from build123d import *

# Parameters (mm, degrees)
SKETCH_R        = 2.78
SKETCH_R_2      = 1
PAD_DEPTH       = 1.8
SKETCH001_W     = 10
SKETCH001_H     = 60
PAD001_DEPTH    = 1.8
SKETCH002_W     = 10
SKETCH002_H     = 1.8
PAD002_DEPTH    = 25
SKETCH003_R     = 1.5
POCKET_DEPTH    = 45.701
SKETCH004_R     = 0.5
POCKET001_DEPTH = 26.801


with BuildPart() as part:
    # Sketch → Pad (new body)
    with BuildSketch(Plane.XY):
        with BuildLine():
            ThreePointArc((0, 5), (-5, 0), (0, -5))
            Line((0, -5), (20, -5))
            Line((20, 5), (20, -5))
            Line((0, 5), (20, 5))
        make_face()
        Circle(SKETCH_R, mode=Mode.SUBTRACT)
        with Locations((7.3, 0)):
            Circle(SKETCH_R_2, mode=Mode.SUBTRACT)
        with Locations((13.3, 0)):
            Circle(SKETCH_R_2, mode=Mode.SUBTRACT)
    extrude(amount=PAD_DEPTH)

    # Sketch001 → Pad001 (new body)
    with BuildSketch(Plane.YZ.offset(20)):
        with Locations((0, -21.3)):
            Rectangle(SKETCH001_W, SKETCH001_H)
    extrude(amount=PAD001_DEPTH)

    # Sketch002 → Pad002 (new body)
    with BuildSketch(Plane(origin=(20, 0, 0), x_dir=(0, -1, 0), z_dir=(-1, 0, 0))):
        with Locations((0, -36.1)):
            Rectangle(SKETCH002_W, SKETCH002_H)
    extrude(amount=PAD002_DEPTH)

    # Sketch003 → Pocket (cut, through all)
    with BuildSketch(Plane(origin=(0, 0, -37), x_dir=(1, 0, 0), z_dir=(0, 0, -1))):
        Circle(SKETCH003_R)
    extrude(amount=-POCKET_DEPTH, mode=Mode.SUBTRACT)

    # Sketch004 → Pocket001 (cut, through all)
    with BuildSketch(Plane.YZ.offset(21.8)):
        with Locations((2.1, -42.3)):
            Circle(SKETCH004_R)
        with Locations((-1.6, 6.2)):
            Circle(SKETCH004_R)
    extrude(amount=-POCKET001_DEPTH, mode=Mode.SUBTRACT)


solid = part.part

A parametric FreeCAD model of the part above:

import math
import FreeCAD as App
import Part
import Sketcher

V = App.Vector
Q = App.Units.Quantity


def add_polygon(sketch, points):
    """Adds a closed chain of lines whose ends are joined by coincident constraints."""
    first, n = sketch.GeometryCount, len(points)
    for a, b in zip(points, points[1:] + points[:1]):
        sketch.addGeometry(Part.LineSegment(App.Vector(*a, 0), App.Vector(*b, 0)), False)
    for i in range(n):
        sketch.addConstraint(Sketcher.Constraint("Coincident", first + i, 2, first + (i + 1) % n, 1))

doc = App.newDocument("Part")
body = doc.addObject("PartDesign::Body", "Body")

# Sketch on XY plane
sketch1 = body.newObject("Sketcher::SketchObject", "Sketch")
sketch1.AttachmentSupport = (doc.getObject("XY_Plane"), [""])
sketch1.MapMode = "FlatFace"
sketch1.addGeometry(Part.ArcOfCircle(Part.Circle(V(0, 0, 0), V(0, 0, 1), 5), math.radians(90), math.radians(270)), False)
sketch1.addGeometry(Part.LineSegment(V(0, -5, 0), V(20, -5, 0)), False)
sketch1.addGeometry(Part.LineSegment(V(20, -5, 0), V(20, 5, 0)), False)
sketch1.addGeometry(Part.LineSegment(V(20, 5, 0), V(0, 5, 0)), False)
sketch1.addGeometry(Part.Circle(V(0, 0, 0), V(0, 0, 1), 2.8), False)
sketch1.addGeometry(Part.Circle(V(7.3, 0, 0), V(0, 0, 1), 1), False)
sketch1.addGeometry(Part.Circle(V(13.3, 0, 0), V(0, 0, 1), 1), False)
sketch1.addConstraint(Sketcher.Constraint("Tangent", 0, 2, 1, 1))
sketch1.addConstraint(Sketcher.Constraint("Coincident", 1, 2, 2, 1))
sketch1.addConstraint(Sketcher.Constraint("Coincident", 2, 2, 3, 1))
sketch1.addConstraint(Sketcher.Constraint("Tangent", 3, 2, 0, 1))
sketch1.addConstraint(Sketcher.Constraint("Horizontal", 1))
sketch1.addConstraint(Sketcher.Constraint("Vertical", 2))
sketch1.addConstraint(Sketcher.Constraint("Horizontal", 3))
sketch1.addConstraint(Sketcher.Constraint("Coincident", 0, 3, -1, 1))
sketch1.addConstraint(Sketcher.Constraint("Coincident", 4, 3, -1, 1))
sketch1.addConstraint(Sketcher.Constraint("Equal", 5, 6))
sketch1.addConstraint(Sketcher.Constraint("PointOnObject", 5, 3, -1))
sketch1.addConstraint(Sketcher.Constraint("PointOnObject", 6, 3, -1))
sketch1.addConstraint(Sketcher.Constraint("Diameter", 5, Q("2 mm")))
sketch1.addConstraint(Sketcher.Constraint("Radius", 0, Q("5 mm")))
sketch1.addConstraint(Sketcher.Constraint("Diameter", 4, Q("5.56 mm")))
sketch1.addConstraint(Sketcher.Constraint("DistanceX", 1, 1, 1, 2, Q("20 mm")))
sketch1.addConstraint(Sketcher.Constraint("DistanceX", 5, 3, 6, 3, Q("6 mm")))
sketch1.addConstraint(Sketcher.Constraint("DistanceX", -1, 1, 5, 3, Q("7.3 mm")))
pad1 = body.newObject("PartDesign::Pad", "Pad")
pad1.Profile = sketch1
pad1.Length = 1.8

# Sketch on YZ plane
sketch2 = body.newObject("Sketcher::SketchObject", "Sketch001")
sketch2.AttachmentSupport = (doc.getObject("YZ_Plane"), [""])
sketch2.MapMode = "FlatFace"
sketch2.AttachmentOffset = App.Placement(V(0, 0, 20), App.Rotation())
add_polygon(sketch2, [(-5, 9), (-5, -51), (5, -51), (5, 9)])  # lines 0-3
sketch2.addConstraint(Sketcher.Constraint("Vertical", 0))
sketch2.addConstraint(Sketcher.Constraint("Horizontal", 1))
sketch2.addConstraint(Sketcher.Constraint("Vertical", 2))
sketch2.addConstraint(Sketcher.Constraint("Horizontal", 3))
sketch2.addConstraint(Sketcher.Constraint("DistanceX", 1, 1, 1, 2, Q("10 mm")))
sketch2.addConstraint(Sketcher.Constraint("DistanceY", 0, 2, 0, 1, Q("60 mm")))
sketch2.addConstraint(Sketcher.Constraint("DistanceX", 0, 2, -1, 1, Q("5 mm")))
sketch2.addConstraint(Sketcher.Constraint("DistanceY", 0, 2, -1, 1, Q("51.3 mm")))
pad2 = body.newObject("PartDesign::Pad", "Pad001")
pad2.Profile = sketch2
pad2.Length = 1.8

# Sketch on YZ plane
sketch3 = body.newObject("Sketcher::SketchObject", "Sketch002")
sketch3.AttachmentSupport = (doc.getObject("YZ_Plane"), [""])
sketch3.MapMode = "FlatFace"
sketch3.AttachmentOffset = App.Placement(V(0, 0, 20), App.Rotation())
add_polygon(sketch3, [(5, -35.2), (5, -37), (-5, -37), (-5, -35.2)])  # lines 0-3
sketch3.addConstraint(Sketcher.Constraint("Vertical", 0))
sketch3.addConstraint(Sketcher.Constraint("Horizontal", 1))
sketch3.addConstraint(Sketcher.Constraint("Vertical", 2))
sketch3.addConstraint(Sketcher.Constraint("Horizontal", 3))
sketch3.addConstraint(Sketcher.Constraint("DistanceX", 1, 2, 1, 1, Q("10 mm")))
sketch3.addConstraint(Sketcher.Constraint("DistanceY", 0, 2, 0, 1, Q("1.8 mm")))
sketch3.addConstraint(Sketcher.Constraint("DistanceX", -1, 1, 0, 2, Q("5 mm")))
sketch3.addConstraint(Sketcher.Constraint("DistanceY", 0, 2, -1, 1, Q("37 mm")))
pad3 = body.newObject("PartDesign::Pad", "Pad002")
pad3.Profile = sketch3
pad3.Length = 25
pad3.Reversed = True

# Sketch on XY plane
sketch4 = body.newObject("Sketcher::SketchObject", "Sketch003")
sketch4.AttachmentSupport = (doc.getObject("XY_Plane"), [""])
sketch4.MapMode = "FlatFace"
sketch4.AttachmentOffset = App.Placement(V(0, 0, -37), App.Rotation())
sketch4.addGeometry(Part.Circle(V(0, 0, 0), V(0, 0, 1), 1.5), False)
sketch4.addConstraint(Sketcher.Constraint("Coincident", 0, 3, -1, 1))
sketch4.addConstraint(Sketcher.Constraint("Diameter", 0, Q("3 mm")))
pocket1 = body.newObject("PartDesign::Pocket", "Pocket")
pocket1.Profile = sketch4
pocket1.Type = "ThroughAll"
pocket1.Reversed = True

# Sketch on YZ plane
sketch5 = body.newObject("Sketcher::SketchObject", "Sketch004")
sketch5.AttachmentSupport = (doc.getObject("YZ_Plane"), [""])
sketch5.MapMode = "FlatFace"
sketch5.AttachmentOffset = App.Placement(V(0, 0, 21.8), App.Rotation())
sketch5.addGeometry(Part.Circle(V(2.1, -42.3, 0), V(0, 0, 1), 0.5), False)
sketch5.addGeometry(Part.Circle(V(-1.6, 6.2, 0), V(0, 0, 1), 0.5), False)
sketch5.addConstraint(Sketcher.Constraint("Equal", 0, 1))
sketch5.addConstraint(Sketcher.Constraint("Diameter", 0, Q("1 mm")))
sketch5.addConstraint(Sketcher.Constraint("DistanceX", -1, 1, 0, 3, Q("2.1 mm")))
sketch5.addConstraint(Sketcher.Constraint("DistanceY", 0, 3, -1, 1, Q("42.3 mm")))
sketch5.addConstraint(Sketcher.Constraint("DistanceX", 1, 3, -1, 1, Q("1.6 mm")))
sketch5.addConstraint(Sketcher.Constraint("DistanceY", -1, 1, 1, 3, Q("6.2 mm")))
pocket2 = body.newObject("PartDesign::Pocket", "Pocket001")
pocket2.Profile = sketch5
pocket2.Type = "ThroughAll"

doc.recompute()
